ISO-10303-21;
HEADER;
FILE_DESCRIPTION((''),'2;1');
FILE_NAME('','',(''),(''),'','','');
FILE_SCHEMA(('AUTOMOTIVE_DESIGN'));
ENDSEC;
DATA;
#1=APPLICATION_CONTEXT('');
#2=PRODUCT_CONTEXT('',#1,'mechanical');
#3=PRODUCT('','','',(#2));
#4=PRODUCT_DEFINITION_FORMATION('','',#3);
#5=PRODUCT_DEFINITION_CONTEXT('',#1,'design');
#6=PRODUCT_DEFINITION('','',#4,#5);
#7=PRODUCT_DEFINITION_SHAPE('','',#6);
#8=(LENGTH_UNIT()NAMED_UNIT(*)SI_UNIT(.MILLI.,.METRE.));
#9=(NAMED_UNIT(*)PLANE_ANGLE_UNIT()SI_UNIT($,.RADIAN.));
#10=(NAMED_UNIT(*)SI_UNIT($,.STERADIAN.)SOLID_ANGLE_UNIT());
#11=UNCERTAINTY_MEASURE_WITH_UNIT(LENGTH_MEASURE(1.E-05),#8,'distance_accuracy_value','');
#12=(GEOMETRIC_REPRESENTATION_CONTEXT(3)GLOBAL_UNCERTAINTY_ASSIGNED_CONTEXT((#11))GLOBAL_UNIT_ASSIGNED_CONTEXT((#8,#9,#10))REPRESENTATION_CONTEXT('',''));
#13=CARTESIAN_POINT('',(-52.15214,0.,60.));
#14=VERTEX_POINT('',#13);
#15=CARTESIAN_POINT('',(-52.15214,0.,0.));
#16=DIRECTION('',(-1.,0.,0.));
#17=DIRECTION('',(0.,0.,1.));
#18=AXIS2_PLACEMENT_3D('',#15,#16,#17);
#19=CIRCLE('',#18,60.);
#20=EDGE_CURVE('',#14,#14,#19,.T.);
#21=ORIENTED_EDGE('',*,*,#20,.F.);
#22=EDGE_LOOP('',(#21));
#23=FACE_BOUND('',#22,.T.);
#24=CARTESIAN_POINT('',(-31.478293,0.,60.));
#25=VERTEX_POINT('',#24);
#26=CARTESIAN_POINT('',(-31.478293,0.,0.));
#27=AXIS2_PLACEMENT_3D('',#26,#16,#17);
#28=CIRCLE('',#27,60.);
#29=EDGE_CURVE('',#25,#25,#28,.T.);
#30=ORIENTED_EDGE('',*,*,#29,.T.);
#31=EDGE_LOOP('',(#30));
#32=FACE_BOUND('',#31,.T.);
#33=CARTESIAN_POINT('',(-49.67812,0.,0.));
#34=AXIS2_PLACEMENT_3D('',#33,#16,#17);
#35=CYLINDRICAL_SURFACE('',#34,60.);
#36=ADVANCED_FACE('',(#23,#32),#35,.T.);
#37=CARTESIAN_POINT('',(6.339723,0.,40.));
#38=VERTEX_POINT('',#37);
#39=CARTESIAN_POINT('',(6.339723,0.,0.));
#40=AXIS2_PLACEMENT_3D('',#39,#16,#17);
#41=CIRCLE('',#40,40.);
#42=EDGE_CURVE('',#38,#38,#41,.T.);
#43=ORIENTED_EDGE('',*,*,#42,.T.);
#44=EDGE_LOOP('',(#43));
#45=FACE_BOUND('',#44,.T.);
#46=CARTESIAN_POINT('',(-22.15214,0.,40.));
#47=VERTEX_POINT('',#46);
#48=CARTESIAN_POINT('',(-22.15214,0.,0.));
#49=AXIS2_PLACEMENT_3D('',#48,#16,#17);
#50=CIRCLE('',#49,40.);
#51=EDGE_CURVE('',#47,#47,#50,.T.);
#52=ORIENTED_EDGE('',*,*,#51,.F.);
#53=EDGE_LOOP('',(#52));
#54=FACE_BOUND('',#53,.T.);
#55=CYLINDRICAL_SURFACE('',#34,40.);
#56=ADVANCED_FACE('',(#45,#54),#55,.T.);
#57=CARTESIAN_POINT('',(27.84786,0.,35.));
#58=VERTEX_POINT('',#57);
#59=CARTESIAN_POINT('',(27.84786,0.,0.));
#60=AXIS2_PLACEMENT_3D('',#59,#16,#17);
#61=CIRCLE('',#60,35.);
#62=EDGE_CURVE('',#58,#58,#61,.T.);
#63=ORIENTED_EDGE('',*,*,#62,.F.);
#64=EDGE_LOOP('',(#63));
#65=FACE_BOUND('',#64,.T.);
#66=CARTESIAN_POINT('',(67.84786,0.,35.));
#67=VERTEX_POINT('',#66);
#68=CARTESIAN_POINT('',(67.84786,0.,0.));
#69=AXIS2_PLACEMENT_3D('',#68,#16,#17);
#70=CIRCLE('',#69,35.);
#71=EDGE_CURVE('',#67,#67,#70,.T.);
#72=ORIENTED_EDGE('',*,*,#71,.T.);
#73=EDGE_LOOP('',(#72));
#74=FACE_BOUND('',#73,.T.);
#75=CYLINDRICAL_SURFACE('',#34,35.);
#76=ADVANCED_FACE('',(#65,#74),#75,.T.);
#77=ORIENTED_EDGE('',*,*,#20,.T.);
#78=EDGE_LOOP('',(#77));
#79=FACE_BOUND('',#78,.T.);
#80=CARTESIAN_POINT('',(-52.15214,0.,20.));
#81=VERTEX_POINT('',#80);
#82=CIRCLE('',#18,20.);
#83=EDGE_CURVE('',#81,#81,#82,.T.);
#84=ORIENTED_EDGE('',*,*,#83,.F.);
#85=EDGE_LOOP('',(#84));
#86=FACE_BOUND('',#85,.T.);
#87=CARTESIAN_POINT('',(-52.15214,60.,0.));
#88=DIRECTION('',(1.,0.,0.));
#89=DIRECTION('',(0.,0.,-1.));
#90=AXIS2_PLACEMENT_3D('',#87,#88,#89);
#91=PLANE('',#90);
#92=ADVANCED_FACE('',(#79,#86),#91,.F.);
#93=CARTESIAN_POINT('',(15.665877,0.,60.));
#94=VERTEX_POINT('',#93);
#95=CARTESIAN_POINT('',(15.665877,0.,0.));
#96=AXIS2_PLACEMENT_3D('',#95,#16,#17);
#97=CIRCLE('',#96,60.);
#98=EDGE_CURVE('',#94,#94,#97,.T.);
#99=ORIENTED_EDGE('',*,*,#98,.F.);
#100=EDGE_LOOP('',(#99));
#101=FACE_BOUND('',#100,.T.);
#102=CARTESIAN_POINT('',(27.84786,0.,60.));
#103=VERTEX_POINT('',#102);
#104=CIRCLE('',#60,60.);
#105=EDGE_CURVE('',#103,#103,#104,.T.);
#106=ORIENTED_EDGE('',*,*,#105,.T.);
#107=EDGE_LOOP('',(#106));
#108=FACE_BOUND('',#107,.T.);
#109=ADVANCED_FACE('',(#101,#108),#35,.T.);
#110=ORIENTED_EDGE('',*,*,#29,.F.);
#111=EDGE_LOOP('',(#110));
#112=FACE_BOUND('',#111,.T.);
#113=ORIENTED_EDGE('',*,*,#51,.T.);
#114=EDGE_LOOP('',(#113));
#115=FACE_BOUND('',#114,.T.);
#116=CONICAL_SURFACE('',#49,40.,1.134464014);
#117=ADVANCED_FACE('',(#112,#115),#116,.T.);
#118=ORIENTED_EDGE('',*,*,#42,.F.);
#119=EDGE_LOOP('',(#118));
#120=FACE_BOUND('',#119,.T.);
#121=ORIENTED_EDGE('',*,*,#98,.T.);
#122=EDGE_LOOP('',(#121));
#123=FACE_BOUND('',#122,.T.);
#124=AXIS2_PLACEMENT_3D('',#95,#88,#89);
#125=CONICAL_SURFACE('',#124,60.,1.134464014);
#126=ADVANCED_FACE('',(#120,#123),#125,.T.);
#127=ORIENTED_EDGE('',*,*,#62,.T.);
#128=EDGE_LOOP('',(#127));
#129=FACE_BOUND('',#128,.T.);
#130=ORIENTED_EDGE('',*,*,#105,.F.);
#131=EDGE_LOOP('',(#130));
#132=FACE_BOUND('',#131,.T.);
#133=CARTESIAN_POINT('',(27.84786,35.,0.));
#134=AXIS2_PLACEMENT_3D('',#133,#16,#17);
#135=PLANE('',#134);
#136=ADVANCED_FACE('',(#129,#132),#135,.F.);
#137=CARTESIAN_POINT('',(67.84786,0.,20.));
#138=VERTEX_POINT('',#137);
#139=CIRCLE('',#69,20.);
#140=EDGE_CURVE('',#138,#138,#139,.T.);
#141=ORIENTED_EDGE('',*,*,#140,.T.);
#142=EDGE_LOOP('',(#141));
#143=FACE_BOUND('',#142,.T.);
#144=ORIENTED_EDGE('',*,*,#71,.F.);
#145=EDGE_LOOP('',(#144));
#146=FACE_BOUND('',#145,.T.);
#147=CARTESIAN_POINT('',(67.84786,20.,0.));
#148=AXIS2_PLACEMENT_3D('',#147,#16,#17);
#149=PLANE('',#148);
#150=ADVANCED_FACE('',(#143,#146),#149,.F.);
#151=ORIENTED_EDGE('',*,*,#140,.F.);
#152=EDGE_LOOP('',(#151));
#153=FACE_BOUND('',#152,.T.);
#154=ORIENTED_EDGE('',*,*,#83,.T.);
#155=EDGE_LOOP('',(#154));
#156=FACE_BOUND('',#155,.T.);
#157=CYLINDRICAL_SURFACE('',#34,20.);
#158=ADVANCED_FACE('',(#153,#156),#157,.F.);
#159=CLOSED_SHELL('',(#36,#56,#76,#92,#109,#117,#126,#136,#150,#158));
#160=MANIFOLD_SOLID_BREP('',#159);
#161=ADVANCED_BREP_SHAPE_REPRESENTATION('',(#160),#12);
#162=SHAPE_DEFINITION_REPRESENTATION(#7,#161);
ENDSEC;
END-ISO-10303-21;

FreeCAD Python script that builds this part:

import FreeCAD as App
import Part
import Sketcher
Q = App.Units.Quantity


def add_polygon(sketch, points):
    """Adds a closed chain of lines whose ends are joined by coincident constraints."""
    first, n = sketch.GeometryCount, len(points)
    for a, b in zip(points, points[1:] + points[:1]):
        sketch.addGeometry(Part.LineSegment(App.Vector(*a, 0), App.Vector(*b, 0)), False)
    for i in range(n):
        sketch.addConstraint(Sketcher.Constraint("Coincident", first + i, 2, first + (i + 1) % n, 1))

doc = App.newDocument("Part")
body = doc.addObject("PartDesign::Body", "Body")

# Sketch on XY plane
sketch1 = doc.addObject("Sketcher::SketchObject", "Sketch")
body.addObject(sketch1)
sketch1.AttachmentSupport = (doc.XY_Plane, [""])
sketch1.MapMode = "FlatFace"
add_polygon(sketch1, [(-52, 60), (-52, 20), (68, 20), (68, 35), (28, 35), (28, 60), (16, 60), (6, 40), (-22, 40), (-31, 60)])  # lines 0-9
sketch1.addConstraint(Sketcher.Constraint("Vertical", 0))
sketch1.addConstraint(Sketcher.Constraint("Horizontal", 1))
sketch1.addConstraint(Sketcher.Constraint("Vertical", 2))
sketch1.addConstraint(Sketcher.Constraint("Horizontal", 3))
sketch1.addConstraint(Sketcher.Constraint("Vertical", 4))
sketch1.addConstraint(Sketcher.Constraint("Horizontal", 5))
sketch1.addConstraint(Sketcher.Constraint("Horizontal", 7))
sketch1.addConstraint(Sketcher.Constraint("Horizontal", 9))
sketch1.addConstraint(Sketcher.Constraint("Horizontal", 5, 2, 8, 2))
sketch1.addConstraint(Sketcher.Constraint("Equal", 3, 0))
sketch1.addConstraint(Sketcher.Constraint("Equal", 6, 8))
sketch1.addConstraint(Sketcher.Constraint("DistanceX", 1, 1, 1, 2, Q("120 mm")))
sketch1.addConstraint(Sketcher.Constraint("DistanceX", 3, 2, 3, 1, Q("40 mm")))
sketch1.addConstraint(Sketcher.Constraint("DistanceY", 2, 1, 2, 2, Q("15 mm")))
sketch1.addConstraint(Sketcher.Constraint("Angle", 6, Q("-115 deg")))
sketch1.addConstraint(Sketcher.Constraint("DistanceY", -1, 1, 0, 2, Q("20 mm")))
sketch1.addConstraint(Sketcher.Constraint("DistanceY", -1, 1, 6, 2, Q("40 mm")))
sketch1.addConstraint(Sketcher.Constraint("DistanceX", 0, 2, 7, 2, Q("30 mm")))
sketch1.addConstraint(Sketcher.Constraint("DistanceX", 5, 2, 5, 1, Q("12.181984 mm")))
sketch1.addConstraint(Sketcher.Constraint("DistanceX", 0, 2, -1, 1, Q("52.15214 mm")))
revolution = doc.addObject("PartDesign::Revolution", "Revolution")
body.addObject(revolution)
revolution.Profile = sketch1
revolution.ReferenceAxis = (sketch1, ["H_Axis"])
revolution.Angle = 360

doc.recompute()
